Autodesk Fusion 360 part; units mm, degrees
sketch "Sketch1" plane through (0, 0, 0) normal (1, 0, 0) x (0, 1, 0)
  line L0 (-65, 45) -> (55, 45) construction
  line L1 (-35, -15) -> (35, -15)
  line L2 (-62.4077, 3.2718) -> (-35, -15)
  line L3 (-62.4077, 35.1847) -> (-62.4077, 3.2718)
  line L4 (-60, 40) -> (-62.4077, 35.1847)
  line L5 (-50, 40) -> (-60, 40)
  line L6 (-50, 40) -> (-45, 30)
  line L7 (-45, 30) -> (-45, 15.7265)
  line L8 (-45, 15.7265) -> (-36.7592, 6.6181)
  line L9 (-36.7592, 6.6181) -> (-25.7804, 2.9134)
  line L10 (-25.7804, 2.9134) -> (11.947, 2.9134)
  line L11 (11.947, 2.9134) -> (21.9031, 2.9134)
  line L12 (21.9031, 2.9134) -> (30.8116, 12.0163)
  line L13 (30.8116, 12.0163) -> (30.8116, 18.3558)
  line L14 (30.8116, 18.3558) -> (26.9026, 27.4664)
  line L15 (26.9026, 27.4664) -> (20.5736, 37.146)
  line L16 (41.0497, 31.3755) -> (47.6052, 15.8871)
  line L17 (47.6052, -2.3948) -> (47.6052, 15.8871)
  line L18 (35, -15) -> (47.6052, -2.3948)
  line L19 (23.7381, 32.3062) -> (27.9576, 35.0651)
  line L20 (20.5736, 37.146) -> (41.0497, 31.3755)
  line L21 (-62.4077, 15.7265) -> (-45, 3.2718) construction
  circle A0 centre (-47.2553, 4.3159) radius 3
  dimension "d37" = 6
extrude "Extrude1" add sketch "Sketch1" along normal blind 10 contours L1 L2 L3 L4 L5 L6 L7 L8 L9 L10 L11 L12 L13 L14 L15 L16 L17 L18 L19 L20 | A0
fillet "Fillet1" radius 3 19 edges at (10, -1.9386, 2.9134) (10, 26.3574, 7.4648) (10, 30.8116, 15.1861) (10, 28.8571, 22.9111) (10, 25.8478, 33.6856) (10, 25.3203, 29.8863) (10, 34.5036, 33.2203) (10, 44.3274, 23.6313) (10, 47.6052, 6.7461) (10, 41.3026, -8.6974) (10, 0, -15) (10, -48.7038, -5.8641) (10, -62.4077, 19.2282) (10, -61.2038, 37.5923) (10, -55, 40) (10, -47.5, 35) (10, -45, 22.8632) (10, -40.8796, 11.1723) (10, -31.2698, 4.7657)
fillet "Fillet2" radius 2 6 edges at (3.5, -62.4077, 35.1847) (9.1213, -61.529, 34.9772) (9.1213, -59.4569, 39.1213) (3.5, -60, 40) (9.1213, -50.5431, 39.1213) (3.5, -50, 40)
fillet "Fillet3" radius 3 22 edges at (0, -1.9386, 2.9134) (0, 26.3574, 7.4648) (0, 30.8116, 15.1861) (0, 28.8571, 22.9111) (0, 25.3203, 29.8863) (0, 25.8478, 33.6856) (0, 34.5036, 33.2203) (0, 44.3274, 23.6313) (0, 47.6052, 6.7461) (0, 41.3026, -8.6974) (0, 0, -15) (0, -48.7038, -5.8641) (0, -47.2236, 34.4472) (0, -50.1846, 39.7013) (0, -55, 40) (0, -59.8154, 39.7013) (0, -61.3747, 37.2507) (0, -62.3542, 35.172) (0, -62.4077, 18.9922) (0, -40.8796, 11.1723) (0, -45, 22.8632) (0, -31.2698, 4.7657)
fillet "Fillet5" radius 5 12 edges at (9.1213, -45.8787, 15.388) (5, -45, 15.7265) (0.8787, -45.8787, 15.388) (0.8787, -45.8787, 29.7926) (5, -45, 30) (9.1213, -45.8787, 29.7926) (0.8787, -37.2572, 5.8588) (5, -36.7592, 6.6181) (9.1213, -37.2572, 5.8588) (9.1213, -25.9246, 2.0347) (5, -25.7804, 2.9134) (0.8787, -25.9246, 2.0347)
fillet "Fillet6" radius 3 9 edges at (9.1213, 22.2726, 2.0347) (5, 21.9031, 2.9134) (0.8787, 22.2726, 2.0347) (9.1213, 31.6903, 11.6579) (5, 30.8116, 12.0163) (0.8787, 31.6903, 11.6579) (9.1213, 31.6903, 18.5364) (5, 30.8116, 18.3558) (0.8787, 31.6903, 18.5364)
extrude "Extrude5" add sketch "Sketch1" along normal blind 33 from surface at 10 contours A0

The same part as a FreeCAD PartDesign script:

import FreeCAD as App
import Part
import Sketcher
Q = App.Units.Quantity


def edges_at(feature, points):
    """Names of the edges that pass closest to the given points."""
    edges = feature.Shape.Edges
    near = lambda p: min(range(len(edges)), key=lambda i: edges[i].distToShape(Part.Vertex(*p))[0])
    return sorted({f"Edge{near(p) + 1}" for p in points})

doc = App.newDocument("Part")
params = doc.addObject("Spreadsheet::Sheet", "Params")
for row, (alias, value) in enumerate([
    ("sketch1_width", "70 mm"),
    ("sketch1_width2", "10 mm"),
    ("sketch1_length", "32.94 mm"),
    ("pad1_length", "10 mm"),
    ("fillet_radius", "3 mm"),
    ("fillet2_radius", "2 mm"),
    ("fillet3_radius", "3 mm"),
    ("fillet4_radius", "5 mm"),
    ("fillet5_radius", "3 mm"),
    ("sketch2_diameter", "6 mm"),
    ("pad2_length", "33 mm"),
], start=1):
    params.set(f"A{row}", alias)
    params.set(f"B{row}", "=" + value)
    params.setAlias(f"B{row}", alias)

body = doc.addObject("PartDesign::Body", "Body")

# Sketch on YZ plane
sketch1 = body.newObject("Sketcher::SketchObject", "Sketch")
sketch1.AttachmentSupport = (doc.getObject("YZ_Plane"), [""])
sketch1.MapMode = "FlatFace"
sketch1.addGeometry(Part.LineSegment(App.Vector(-62, 3, 0), App.Vector(-35, -15, 0)), False)
sketch1.addGeometry(Part.LineSegment(App.Vector(-35, -15, 0), App.Vector(35, -15, 0)), False)
sketch1.addGeometry(Part.LineSegment(App.Vector(35, -15, 0), App.Vector(48, -2, 0)), False)
sketch1.addGeometry(Part.LineSegment(App.Vector(48, -2, 0), App.Vector(48, 16, 0)), False)
sketch1.addGeometry(Part.LineSegment(App.Vector(48, 16, 0), App.Vector(41, 31, 0)), False)
sketch1.addGeometry(Part.LineSegment(App.Vector(41, 31, 0), App.Vector(28, 35, 0)), False)
sketch1.addGeometry(Part.LineSegment(App.Vector(28, 35, 0), App.Vector(24, 32, 0)), False)
sketch1.addGeometry(Part.LineSegment(App.Vector(24, 32, 0), App.Vector(27, 27, 0)), False)
sketch1.addGeometry(Part.LineSegment(App.Vector(27, 27, 0), App.Vector(31, 18, 0)), False)
sketch1.addGeometry(Part.LineSegment(App.Vector(31, 18, 0), App.Vector(31, 12, 0)), False)
sketch1.addGeometry(Part.LineSegment(App.Vector(31, 12, 0), App.Vector(22, 3, 0)), False)
sketch1.addGeometry(Part.LineSegment(App.Vector(22, 3, 0), App.Vector(-26, 3, 0)), False)
sketch1.addGeometry(Part.LineSegment(App.Vector(-26, 3, 0), App.Vector(-37, 7, 0)), False)
sketch1.addGeometry(Part.LineSegment(App.Vector(-37, 7, 0), App.Vector(-45, 16, 0)), False)
sketch1.addGeometry(Part.LineSegment(App.Vector(-45, 16, 0), App.Vector(-45, 30, 0)), False)
sketch1.addGeometry(Part.LineSegment(App.Vector(-45, 30, 0), App.Vector(-50, 40, 0)), False)
sketch1.addGeometry(Part.LineSegment(App.Vector(-50, 40, 0), App.Vector(-60, 40, 0)), False)
sketch1.addGeometry(Part.LineSegment(App.Vector(-60, 40, 0), App.Vector(-62, 35, 0)), False)
sketch1.addGeometry(Part.LineSegment(App.Vector(-62, 35, 0), App.Vector(-62, 3, 0)), False)
sketch1.addConstraint(Sketcher.Constraint("Coincident", 0, 2, 1, 1))
sketch1.addConstraint(Sketcher.Constraint("Coincident", 1, 2, 2, 1))
sketch1.addConstraint(Sketcher.Constraint("Coincident", 2, 2, 3, 1))
sketch1.addConstraint(Sketcher.Constraint("Coincident", 3, 2, 4, 1))
sketch1.addConstraint(Sketcher.Constraint("Coincident", 4, 2, 5, 1))
sketch1.addConstraint(Sketcher.Constraint("Coincident", 5, 2, 6, 1))
sketch1.addConstraint(Sketcher.Constraint("Coincident", 6, 2, 7, 1))
sketch1.addConstraint(Sketcher.Constraint("Coincident", 7, 2, 8, 1))
sketch1.addConstraint(Sketcher.Constraint("Coincident", 8, 2, 9, 1))
sketch1.addConstraint(Sketcher.Constraint("Coincident", 9, 2, 10, 1))
sketch1.addConstraint(Sketcher.Constraint("Coincident", 10, 2, 11, 1))
sketch1.addConstraint(Sketcher.Constraint("Coincident", 11, 2, 12, 1))
sketch1.addConstraint(Sketcher.Constraint("Coincident", 12, 2, 13, 1))
sketch1.addConstraint(Sketcher.Constraint("Coincident", 13, 2, 14, 1))
sketch1.addConstraint(Sketcher.Constraint("Coincident", 14, 2, 15, 1))
sketch1.addConstraint(Sketcher.Constraint("Coincident", 15, 2, 16, 1))
sketch1.addConstraint(Sketcher.Constraint("Coincident", 16, 2, 17, 1))
sketch1.addConstraint(Sketcher.Constraint("Coincident", 17, 2, 18, 1))
sketch1.addConstraint(Sketcher.Constraint("Coincident", 18, 2, 0, 1))
sketch1.addConstraint(Sketcher.Constraint("Horizontal", 1))
sketch1.addConstraint(Sketcher.Constraint("Vertical", 3))
sketch1.addConstraint(Sketcher.Constraint("Vertical", 9))
sketch1.addConstraint(Sketcher.Constraint("Horizontal", 11))
sketch1.addConstraint(Sketcher.Constraint("Vertical", 14))
sketch1.addConstraint(Sketcher.Constraint("Horizontal", 16))
sketch1.addConstraint(Sketcher.Constraint("Vertical", 18))
sketch1.addConstraint(Sketcher.Constraint("Perpendicular", 6, 7))
sketch1.addConstraint(Sketcher.Constraint("DistanceX", 1, 1, 1, 2, 70.0))
sketch1.addConstraint(Sketcher.Constraint("DistanceX", 16, 2, 16, 1, 10.0))
sketch1.addConstraint(Sketcher.Constraint("Angle", 2, Q("45 deg")))
sketch1.addConstraint(Sketcher.Constraint("DistanceX", 0, 2, -1, 1, 35.0))
sketch1.addConstraint(Sketcher.Constraint("DistanceY", 0, 2, -1, 1, 15.0))
sketch1.addConstraint(Sketcher.Constraint("DistanceX", 13, 2, -1, 1, 45.0))
sketch1.addConstraint(Sketcher.Constraint("DistanceY", -1, 1, 14, 2, 30.0))
sketch1.addConstraint(Sketcher.Constraint("DistanceX", 15, 2, -1, 1, 50.0))
sketch1.addConstraint(Sketcher.Constraint("DistanceY", -1, 1, 15, 2, 40.0))
sketch1.addConstraint(Sketcher.Constraint("Angle", 0, Q("-33.69 deg")))
sketch1.addConstraint(Sketcher.Constraint("Angle", 4, Q("112.9406 deg")))
sketch1.addConstraint(Sketcher.Constraint("Distance", 0, 32.94))
sketch1.addConstraint(Sketcher.Constraint("DistanceY", 3, 1, 3, 2, 18.282))
sketch1.addConstraint(Sketcher.Constraint("DistanceY", 18, 2, 18, 1, 31.913))
sketch1.addConstraint(Sketcher.Constraint("DistanceY", 9, 2, 7, 2, 15.45))
sketch1.addConstraint(Sketcher.Constraint("DistanceY", 9, 2, 6, 2, 20.29))
sketch1.addConstraint(Sketcher.Constraint("Distance", 5, 13.602))
sketch1.addConstraint(Sketcher.Constraint("Distance", 12, 11.587))
sketch1.addConstraint(Sketcher.Constraint("Distance", 13, 12.283))
sketch1.addConstraint(Sketcher.Constraint("DistanceX", 11, 2, 11, 1, 47.6835))
sketch1.addConstraint(Sketcher.Constraint("DistanceY", 9, 2, 9, 1, 6.3395))
sketch1.addConstraint(Sketcher.Constraint("DistanceY", 14, 1, 14, 2, 14.2735))
sketch1.addConstraint(Sketcher.Constraint("DistanceY", -1, 1, 3, 2, 15.887))
sketch1.addConstraint(Sketcher.Constraint("DistanceY", -1, 1, 5, 2, 35.065))
sketch1.addConstraint(Sketcher.Constraint("DistanceX", -1, 1, 6, 2, 23.738))
sketch1.addConstraint(Sketcher.Constraint("DistanceX", -1, 1, 10, 2, 21.903))
sketch1.addConstraint(Sketcher.Constraint("DistanceY", -1, 1, 12, 2, 6.618))
sketch1.addConstraint(Sketcher.Constraint("DistanceX", 5, 2, 4, 2, 13.092))
sketch1.addConstraint(Sketcher.Constraint("DistanceY", 3, 2, 6, 2, 16.419))
sketch1.addConstraint(Sketcher.Constraint("DistanceX", 7, 2, 8, 2, 3.909))
sketch1.setExpression("Constraints[27]", "Params.sketch1_width")
sketch1.setExpression("Constraints[28]", "Params.sketch1_width2")
sketch1.setExpression("Constraints[38]", "Params.sketch1_length")
pad1 = body.newObject("PartDesign::Pad", "Pad")
pad1.Profile = sketch1
pad1.setExpression("Length", "Params.pad1_length")
doc.recompute()

fillet = body.newObject("PartDesign::Fillet", "Fillet")
fillet.Base = (pad1, edges_at(pad1, [
    (10, -1.939, 2.913),
    (10, 26.357, 7.465),
    (10, 30.812, 15.186),
    (10, 28.857, 22.911),
    (10, 25.848, 33.686),
    (10, 25.32, 29.886),
    (10, 34.504, 33.22),
    (10, 44.327, 23.631),
    (10, 47.605, 6.746),
    (10, 41.303, -8.697),
    (10, 0, -15),
    (10, -48.704, -5.864),
    (10, -62.408, 19.228),
    (10, -61.204, 37.592),
    (10, -55, 40),
    (10, -47.5, 35),
    (10, -45, 22.863),
    (10, -40.88, 11.172),
    (10, -31.27, 4.766),
]))
fillet.setExpression("Radius", "Params.fillet_radius")
doc.recompute()

fillet2 = body.newObject("PartDesign::Fillet", "Fillet001")
fillet2.Base = (fillet, edges_at(fillet, [
    (3.5, -62.408, 35.185),
    (9.121, -61.529, 34.977),
    (9.121, -59.457, 39.121),
    (3.5, -60, 40),
    (9.121, -50.543, 39.121),
    (3.5, -50, 40),
]))
fillet2.setExpression("Radius", "Params.fillet2_radius")
doc.recompute()

fillet3 = body.newObject("PartDesign::Fillet", "Fillet002")
fillet3.Base = (fillet2, edges_at(fillet2, [
    (0, -1.939, 2.913),
    (0, 26.357, 7.465),
    (0, 30.812, 15.186),
    (0, 28.857, 22.911),
    (0, 25.32, 29.886),
    (0, 25.848, 33.686),
    (0, 34.504, 33.22),
    (0, 44.327, 23.631),
    (0, 47.605, 6.746),
    (0, 41.303, -8.697),
    (0, 0, -15),
    (0, -48.704, -5.864),
    (0, -47.224, 34.447),
    (0, -50.185, 39.701),
    (0, -55, 40),
    (0, -59.815, 39.701),
    (0, -61.375, 37.251),
    (0, -62.354, 35.172),
    (0, -62.408, 18.992),
    (0, -40.88, 11.172),
    (0, -45, 22.863),
    (0, -31.27, 4.766),
]))
fillet3.setExpression("Radius", "Params.fillet3_radius")
doc.recompute()

fillet4 = body.newObject("PartDesign::Fillet", "Fillet003")
fillet4.Base = (fillet3, edges_at(fillet3, [
    (9.121, -45.879, 15.388),
    (5, -45, 15.726),
    (0.879, -45.879, 15.388),
    (0.879, -45.879, 29.793),
    (5, -45, 30),
    (9.121, -45.879, 29.793),
    (0.879, -37.257, 5.859),
    (5, -36.759, 6.618),
    (9.121, -37.257, 5.859),
    (9.121, -25.925, 2.035),
    (5, -25.78, 2.913),
    (0.879, -25.925, 2.035),
]))
fillet4.setExpression("Radius", "Params.fillet4_radius")
doc.recompute()

fillet5 = body.newObject("PartDesign::Fillet", "Fillet004")
fillet5.Base = (fillet4, edges_at(fillet4, [
    (9.121, 22.273, 2.035),
    (5, 21.903, 2.913),
    (0.879, 22.273, 2.035),
    (9.121, 31.69, 11.658),
    (5, 30.812, 12.016),
    (0.879, 31.69, 11.658),
    (9.121, 31.69, 18.536),
    (5, 30.812, 18.356),
    (0.879, 31.69, 18.536),
]))
fillet5.setExpression("Radius", "Params.fillet5_radius")

# Sketch on YZ plane
sketch2 = body.newObject("Sketcher::SketchObject", "Sketch001")
sketch2.AttachmentSupport = (doc.getObject("YZ_Plane"), [""])
sketch2.MapMode = "FlatFace"
sketch2.AttachmentOffset = App.Placement(App.Vector(0, 0, 10), App.Rotation())
sketch2.addGeometry(Part.Circle(App.Vector(-47.3, 4.3, 0), App.Vector(0, 0, 1), 3), False)
sketch2.addConstraint(Sketcher.Constraint("Diameter", 0, 6.0))
sketch2.addConstraint(Sketcher.Constraint("DistanceY", -1, 1, 0, 3, 4.316))
sketch2.addConstraint(Sketcher.Constraint("DistanceX", 0, 3, -1, 1, 47.2553))
sketch2.setExpression("Constraints[0]", "Params.sketch2_diameter")
pad2 = body.newObject("PartDesign::Pad", "Pad001")
pad2.Profile = sketch2
pad2.setExpression("Length", "Params.pad2_length")

doc.recompute()
